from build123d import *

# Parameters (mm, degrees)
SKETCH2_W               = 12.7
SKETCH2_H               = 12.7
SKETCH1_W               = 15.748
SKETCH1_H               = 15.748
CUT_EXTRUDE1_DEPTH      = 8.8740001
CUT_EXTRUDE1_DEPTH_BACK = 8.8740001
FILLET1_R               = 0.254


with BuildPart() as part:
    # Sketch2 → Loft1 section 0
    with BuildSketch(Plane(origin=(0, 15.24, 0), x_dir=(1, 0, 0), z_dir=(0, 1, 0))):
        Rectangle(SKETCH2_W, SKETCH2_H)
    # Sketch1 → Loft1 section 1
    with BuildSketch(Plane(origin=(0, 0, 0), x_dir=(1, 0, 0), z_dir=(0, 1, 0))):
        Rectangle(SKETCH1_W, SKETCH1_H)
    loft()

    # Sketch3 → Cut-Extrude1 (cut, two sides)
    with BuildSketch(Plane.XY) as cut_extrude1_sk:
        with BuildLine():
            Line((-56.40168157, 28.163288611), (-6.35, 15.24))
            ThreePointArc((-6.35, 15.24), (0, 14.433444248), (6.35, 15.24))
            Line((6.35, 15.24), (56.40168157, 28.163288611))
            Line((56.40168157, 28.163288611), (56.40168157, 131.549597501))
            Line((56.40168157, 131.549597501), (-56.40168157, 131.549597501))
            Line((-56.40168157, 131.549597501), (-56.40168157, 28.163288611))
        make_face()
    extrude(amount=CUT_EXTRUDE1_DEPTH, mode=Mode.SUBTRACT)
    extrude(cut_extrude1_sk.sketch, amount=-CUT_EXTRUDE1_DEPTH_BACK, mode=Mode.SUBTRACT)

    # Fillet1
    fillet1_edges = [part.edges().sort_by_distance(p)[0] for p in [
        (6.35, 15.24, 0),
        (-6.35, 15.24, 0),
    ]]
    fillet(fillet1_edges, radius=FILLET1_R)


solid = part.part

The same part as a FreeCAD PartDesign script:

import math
import FreeCAD as App
import Part
import Sketcher

V = App.Vector
Q = App.Units.Quantity


def edges_at(feature, points):
    """Names of the edges that pass closest to the given points."""
    edges = feature.Shape.Edges
    near = lambda p: min(range(len(edges)), key=lambda i: edges[i].distToShape(Part.Vertex(*p))[0])
    return sorted({f"Edge{near(p) + 1}" for p in points})

doc = App.newDocument("Part")
params = doc.addObject("Spreadsheet::Sheet", "Params")
for row, (alias, value) in enumerate([
    ("sketch1_width", "0.5 in"),
    ("sketch2_width", "0.62 in"),
    ("sketch3_radius", "1 in"),
    ("fillet_radius", "0.01 in"),
], start=1):
    params.set(f"A{row}", alias)
    params.set(f"B{row}", "=" + value)
    params.setAlias(f"B{row}", alias)

body = doc.addObject("PartDesign::Body", "Body")

sketch1 = body.newObject("Sketcher::SketchObject", "Sketch")
sketch1.AttachmentSupport = (doc.getObject("XZ_Plane"), [""])
sketch1.MapMode = "FlatFace"
sketch1.AttachmentOffset = App.Placement(V(0, 0, -0.6 * 25.4), App.Rotation())
sketch1.addGeometry([
    Part.LineSegment(V(-6, -6, 0), V(-6, 6, 0)),
    Part.LineSegment(V(-6, 6, 0), V(6, 6, 0)),
    Part.LineSegment(V(6, 6, 0), V(6, -6, 0)),
    Part.LineSegment(V(6, -6, 0), V(-6, -6, 0)),
], False)
sketch1.addConstraint([
    Sketcher.Constraint("Coincident", 0, 2, 1, 1),
    Sketcher.Constraint("Coincident", 1, 2, 2, 1),
    Sketcher.Constraint("Coincident", 2, 2, 3, 1),
    Sketcher.Constraint("Coincident", 3, 2, 0, 1),
    Sketcher.Constraint("Vertical", 0),
    Sketcher.Constraint("Horizontal", 1),
    Sketcher.Constraint("Vertical", 2),
    Sketcher.Constraint("Horizontal", 3),
    Sketcher.Constraint("Symmetric", 0, 2, 2, 2, -1, 1),
    Sketcher.Constraint("Equal", 3, 0),
    Sketcher.Constraint("DistanceX", 1, 1, 1, 2, Q("0.5 in")),
])
sketch1.setExpression("Constraints[10]", "Params.sketch1_width")

sketch2 = body.newObject("Sketcher::SketchObject", "Sketch001")
sketch2.AttachmentSupport = (doc.getObject("XZ_Plane"), [""])
sketch2.MapMode = "FlatFace"
sketch2.addGeometry([
    Part.LineSegment(V(-8, -8, 0), V(-8, 8, 0)),
    Part.LineSegment(V(-8, 8, 0), V(8, 8, 0)),
    Part.LineSegment(V(8, 8, 0), V(8, -8, 0)),
    Part.LineSegment(V(8, -8, 0), V(-8, -8, 0)),
], False)
sketch2.addConstraint([
    Sketcher.Constraint("Coincident", 0, 2, 1, 1),
    Sketcher.Constraint("Coincident", 1, 2, 2, 1),
    Sketcher.Constraint("Coincident", 2, 2, 3, 1),
    Sketcher.Constraint("Coincident", 3, 2, 0, 1),
    Sketcher.Constraint("Vertical", 0),
    Sketcher.Constraint("Horizontal", 1),
    Sketcher.Constraint("Vertical", 2),
    Sketcher.Constraint("Horizontal", 3),
    Sketcher.Constraint("Symmetric", 0, 2, 2, 2, -1, 1),
    Sketcher.Constraint("Equal", 3, 0),
    Sketcher.Constraint("DistanceX", 1, 1, 1, 2, Q("0.62 in")),
])
sketch2.setExpression("Constraints[10]", "Params.sketch2_width")

additiveloft = body.newObject("PartDesign::AdditiveLoft", "AdditiveLoft")
additiveloft.Profile = sketch1
additiveloft.Sections = [sketch2]

sketch3 = body.newObject("Sketcher::SketchObject", "Sketch002")
sketch3.AttachmentSupport = (doc.getObject("XY_Plane"), [""])
sketch3.MapMode = "FlatFace"
sketch3.addGeometry([
    Part.LineSegment(V(-56, 28, 0), V(-6, 15, 0)),
    Part.ArcOfCircle(Part.Circle(V(0, 40, 0), V(0, 0, 1), 25), math.radians(-104), math.radians(-76)),
    Part.LineSegment(V(6, 15, 0), V(56, 28, 0)),
    Part.LineSegment(V(56, 28, 0), V(56, 132, 0)),
    Part.LineSegment(V(56, 132, 0), V(-56, 132, 0)),
    Part.LineSegment(V(-56, 132, 0), V(-56, 28, 0)),
], False)
sketch3.addConstraint([
    Sketcher.Constraint("Tangent", 0, 2, 1, 1),
    Sketcher.Constraint("Tangent", 1, 2, 2, 1),
    Sketcher.Constraint("Coincident", 2, 2, 3, 1),
    Sketcher.Constraint("Coincident", 3, 2, 4, 1),
    Sketcher.Constraint("Coincident", 4, 2, 5, 1),
    Sketcher.Constraint("Coincident", 5, 2, 0, 1),
    Sketcher.Constraint("Vertical", 3),
    Sketcher.Constraint("Horizontal", 4),
    Sketcher.Constraint("Vertical", 5),
    Sketcher.Constraint("Symmetric", 0, 2, 1, 2, -2),
    Sketcher.Constraint("Horizontal", 2, 2, 5, 2),
    Sketcher.Constraint("Radius", 1, Q("1 in")),
    Sketcher.Constraint("DistanceY", -1, 1, 0, 2, Q("0.6 in")),
    Sketcher.Constraint("DistanceX", 0, 2, 1, 2, Q("0.5 in")),
    Sketcher.Constraint("DistanceY", 3, 1, 3, 2, Q("103.386309 mm")),
    Sketcher.Constraint("DistanceX", 4, 2, 4, 1, Q("112.803363 mm")),
])
sketch3.setExpression("Constraints[11]", "Params.sketch3_radius")
pocket1 = body.newObject("PartDesign::Pocket", "Pocket")
pocket1.Profile = sketch3
pocket1.Type = "ThroughAll"
pocket1.Midplane = True
doc.recompute()

fillet = body.newObject("PartDesign::Fillet", "Fillet")
fillet.Base = (pocket1, edges_at(pocket1, [(6.35, 15.24, 0), (-6.35, 15.24, 0)]))
fillet.setExpression("Radius", "Params.fillet_radius")

doc.recompute()
